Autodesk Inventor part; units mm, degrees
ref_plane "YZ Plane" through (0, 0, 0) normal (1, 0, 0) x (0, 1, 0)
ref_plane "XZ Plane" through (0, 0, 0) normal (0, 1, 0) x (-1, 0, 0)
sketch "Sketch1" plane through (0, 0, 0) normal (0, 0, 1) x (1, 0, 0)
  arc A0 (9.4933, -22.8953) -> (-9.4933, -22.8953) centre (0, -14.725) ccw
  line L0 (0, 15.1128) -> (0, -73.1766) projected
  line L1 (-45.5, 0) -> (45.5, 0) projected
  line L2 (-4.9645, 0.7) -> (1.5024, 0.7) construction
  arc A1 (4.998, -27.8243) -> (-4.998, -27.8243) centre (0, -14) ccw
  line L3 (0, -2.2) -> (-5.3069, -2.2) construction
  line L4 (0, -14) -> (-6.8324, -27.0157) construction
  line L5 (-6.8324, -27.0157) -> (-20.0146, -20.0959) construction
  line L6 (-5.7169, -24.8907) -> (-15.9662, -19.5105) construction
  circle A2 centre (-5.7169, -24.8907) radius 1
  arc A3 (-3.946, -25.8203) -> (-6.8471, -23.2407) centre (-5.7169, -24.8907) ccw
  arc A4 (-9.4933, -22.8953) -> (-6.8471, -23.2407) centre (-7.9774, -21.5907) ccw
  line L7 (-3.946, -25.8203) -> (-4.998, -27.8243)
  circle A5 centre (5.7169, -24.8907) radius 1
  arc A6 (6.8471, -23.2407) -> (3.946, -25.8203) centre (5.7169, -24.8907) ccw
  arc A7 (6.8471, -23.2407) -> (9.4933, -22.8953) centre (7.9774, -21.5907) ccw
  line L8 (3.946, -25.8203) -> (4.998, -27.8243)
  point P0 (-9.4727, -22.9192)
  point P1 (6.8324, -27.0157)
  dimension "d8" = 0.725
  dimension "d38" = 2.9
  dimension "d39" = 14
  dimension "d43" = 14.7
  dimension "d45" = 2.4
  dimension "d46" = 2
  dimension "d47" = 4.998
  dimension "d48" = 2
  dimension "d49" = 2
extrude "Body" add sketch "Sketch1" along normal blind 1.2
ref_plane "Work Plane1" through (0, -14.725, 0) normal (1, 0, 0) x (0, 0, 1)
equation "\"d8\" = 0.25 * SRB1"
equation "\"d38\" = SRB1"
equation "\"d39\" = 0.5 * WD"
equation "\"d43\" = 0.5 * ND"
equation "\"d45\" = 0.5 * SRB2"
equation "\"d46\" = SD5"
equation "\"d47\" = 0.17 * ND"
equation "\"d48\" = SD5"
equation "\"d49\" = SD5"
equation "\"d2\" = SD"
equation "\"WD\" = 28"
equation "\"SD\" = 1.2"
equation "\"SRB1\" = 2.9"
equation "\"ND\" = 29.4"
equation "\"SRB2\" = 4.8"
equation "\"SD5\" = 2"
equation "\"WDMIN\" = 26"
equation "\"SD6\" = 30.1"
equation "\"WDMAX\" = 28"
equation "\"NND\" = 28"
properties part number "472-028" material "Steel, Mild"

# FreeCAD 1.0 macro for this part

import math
import FreeCAD as App
import Part
import Sketcher

doc = App.newDocument("Part")
body = doc.addObject("PartDesign::Body", "Body")

sketch1 = body.newObject("Sketcher::SketchObject", "Sketch")
sketch1.AttachmentSupport = (doc.getObject("XY_Plane"), [""])
sketch1.MapMode = "FlatFace"
sketch1.addGeometry(Part.ArcOfCircle(Part.Circle(App.Vector(8, -21.6, 0), App.Vector(0, 0, 1), 2), math.radians(-124), math.radians(-41)), False)
sketch1.addGeometry(Part.ArcOfCircle(Part.Circle(App.Vector(5.7, -24.9, 0), App.Vector(0, 0, 1), 2), math.radians(56), math.radians(208)), False)
sketch1.addGeometry(Part.LineSegment(App.Vector(3.9, -25.8, 0), App.Vector(5, -27.8, 0)), False)
sketch1.addGeometry(Part.ArcOfCircle(Part.Circle(App.Vector(0, -14, 0), App.Vector(0, 0, 1), 14.7), math.radians(-70), math.radians(250)), False)
sketch1.addGeometry(Part.LineSegment(App.Vector(-5, -27.8, 0), App.Vector(-3.9, -25.8, 0)), False)
sketch1.addGeometry(Part.ArcOfCircle(Part.Circle(App.Vector(-5.7, -24.9, 0), App.Vector(0, 0, 1), 2), math.radians(-28), math.radians(124)), False)
sketch1.addGeometry(Part.ArcOfCircle(Part.Circle(App.Vector(-8, -21.6, 0), App.Vector(0, 0, 1), 2), math.radians(-139), math.radians(-56)), False)
sketch1.addGeometry(Part.ArcOfCircle(Part.Circle(App.Vector(0, -14.7, 0), App.Vector(0, 0, 1), 12.5), math.radians(-41), math.radians(221)), False)
sketch1.addGeometry(Part.Circle(App.Vector(5.7, -24.9, 0), App.Vector(0, 0, 1), 1), False)
sketch1.addGeometry(Part.Circle(App.Vector(-5.7, -24.9, 0), App.Vector(0, 0, 1), 1), False)
sketch1.addConstraint(Sketcher.Constraint("Tangent", 0, 1, 1, 1))
sketch1.addConstraint(Sketcher.Constraint("Tangent", 1, 2, 2, 1))
sketch1.addConstraint(Sketcher.Constraint("Coincident", 2, 2, 3, 1))
sketch1.addConstraint(Sketcher.Constraint("Coincident", 3, 2, 4, 1))
sketch1.addConstraint(Sketcher.Constraint("Tangent", 4, 2, 5, 1))
sketch1.addConstraint(Sketcher.Constraint("Tangent", 5, 2, 6, 2))
sketch1.addConstraint(Sketcher.Constraint("Tangent", 6, 1, 7, 2))
sketch1.addConstraint(Sketcher.Constraint("Tangent", 7, 1, 0, 2))
sketch1.addConstraint(Sketcher.Constraint("Coincident", 8, 3, 1, 3))
sketch1.addConstraint(Sketcher.Constraint("Coincident", 9, 3, 5, 3))
sketch1.addConstraint(Sketcher.Constraint("Equal", 0, 1))
sketch1.addConstraint(Sketcher.Constraint("Equal", 1, 5))
sketch1.addConstraint(Sketcher.Constraint("Equal", 5, 6))
sketch1.addConstraint(Sketcher.Constraint("Equal", 8, 9))
sketch1.addConstraint(Sketcher.Constraint("Symmetric", 1, 3, 5, 3, -2))
sketch1.addConstraint(Sketcher.Constraint("Symmetric", 2, 2, 3, 2, -2))
sketch1.addConstraint(Sketcher.Constraint("PointOnObject", 7, 3, -2))
sketch1.addConstraint(Sketcher.Constraint("Diameter", 8, 2.0))
sketch1.addConstraint(Sketcher.Constraint("Radius", 0, 2.0))
sketch1.addConstraint(Sketcher.Constraint("Radius", 3, 14.7))
sketch1.addConstraint(Sketcher.Constraint("DistanceY", 3, 3, -1, 1, 14.0))
sketch1.addConstraint(Sketcher.Constraint("DistanceX", -1, 1, 2, 2, 4.998))
sketch1.addConstraint(Sketcher.Constraint("Radius", 7, 12.525))
sketch1.addConstraint(Sketcher.Constraint("DistanceY", 7, 3, 3, 3, 0.725))
sketch1.addConstraint(Sketcher.Constraint("DistanceY", 1, 3, 0, 3, 3.3))
sketch1.addConstraint(Sketcher.Constraint("DistanceX", -1, 1, 1, 3, 5.717))
pad1 = body.newObject("PartDesign::Pad", "Pad")
pad1.Profile = sketch1
pad1.Length = 1.2

doc.recompute()
